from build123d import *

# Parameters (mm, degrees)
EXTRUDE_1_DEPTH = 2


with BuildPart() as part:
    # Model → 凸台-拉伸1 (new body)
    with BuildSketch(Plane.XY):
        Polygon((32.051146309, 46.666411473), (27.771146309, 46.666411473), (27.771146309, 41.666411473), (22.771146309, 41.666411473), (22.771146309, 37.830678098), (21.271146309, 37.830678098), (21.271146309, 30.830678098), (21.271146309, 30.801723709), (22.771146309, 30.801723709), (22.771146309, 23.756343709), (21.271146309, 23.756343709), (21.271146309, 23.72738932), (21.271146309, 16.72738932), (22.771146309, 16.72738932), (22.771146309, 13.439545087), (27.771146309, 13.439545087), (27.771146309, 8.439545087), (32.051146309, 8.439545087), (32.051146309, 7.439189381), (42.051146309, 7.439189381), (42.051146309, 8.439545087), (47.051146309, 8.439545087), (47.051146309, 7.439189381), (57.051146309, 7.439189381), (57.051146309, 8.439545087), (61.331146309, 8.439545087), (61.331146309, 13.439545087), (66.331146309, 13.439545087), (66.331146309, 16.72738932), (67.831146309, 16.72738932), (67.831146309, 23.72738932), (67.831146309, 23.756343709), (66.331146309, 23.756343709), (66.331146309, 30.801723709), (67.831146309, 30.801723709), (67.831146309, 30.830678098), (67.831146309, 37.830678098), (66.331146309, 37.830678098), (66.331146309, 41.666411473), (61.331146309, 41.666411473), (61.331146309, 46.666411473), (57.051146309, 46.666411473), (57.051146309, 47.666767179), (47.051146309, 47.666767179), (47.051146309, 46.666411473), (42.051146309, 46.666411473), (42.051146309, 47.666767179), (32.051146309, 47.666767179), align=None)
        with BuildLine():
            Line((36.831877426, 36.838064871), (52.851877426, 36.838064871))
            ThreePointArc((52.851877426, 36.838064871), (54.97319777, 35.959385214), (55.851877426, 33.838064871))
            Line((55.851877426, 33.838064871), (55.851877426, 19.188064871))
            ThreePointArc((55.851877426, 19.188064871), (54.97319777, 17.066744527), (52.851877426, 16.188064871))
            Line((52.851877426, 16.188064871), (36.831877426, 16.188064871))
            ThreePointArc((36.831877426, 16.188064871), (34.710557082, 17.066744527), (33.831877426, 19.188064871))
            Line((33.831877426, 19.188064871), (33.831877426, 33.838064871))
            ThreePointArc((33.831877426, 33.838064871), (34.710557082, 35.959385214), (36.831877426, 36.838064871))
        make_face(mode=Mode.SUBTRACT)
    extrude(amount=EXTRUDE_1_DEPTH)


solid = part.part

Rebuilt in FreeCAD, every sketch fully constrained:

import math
import FreeCAD as App
import Part
import Sketcher
from FreeCAD import Vector


def add_polygon(sketch, points):
    """Adds a closed chain of lines whose ends are joined by coincident constraints."""
    first, n = sketch.GeometryCount, len(points)
    for a, b in zip(points, points[1:] + points[:1]):
        sketch.addGeometry(Part.LineSegment(App.Vector(*a, 0), App.Vector(*b, 0)), False)
    for i in range(n):
        sketch.addConstraint(Sketcher.Constraint("Coincident", first + i, 2, first + (i + 1) % n, 1))

doc = App.newDocument("Part")
body = doc.addObject("PartDesign::Body", "Body")

# Sketch on XY plane
sketch1 = body.newObject("Sketcher::SketchObject", "Sketch")
sketch1.AttachmentSupport = (doc.getObject("XY_Plane"), [""])
sketch1.MapMode = "FlatFace"
add_polygon(sketch1, [(32.1, 46.7), (27.8, 46.7), (27.8, 41.7), (22.8, 41.7), (22.8, 37.8), (21.3, 37.8), (21.3, 30.8), (22.8, 30.8), (22.8, 23.8), (21.3, 23.8), (21.3, 16.7), (22.8, 16.7), (22.8, 13.4), (27.8, 13.4), (27.8, 8.4), (32.1, 8.4), (32.1, 7.4), (42.1, 7.4), (42.1, 8.4), (47.1, 8.4), (47.1, 7.4), (57.1, 7.4), (57.1, 8.4), (61.3, 8.4), (61.3, 13.4), (66.3, 13.4), (66.3, 16.7), (67.8, 16.7), (67.8, 23.8), (66.3, 23.8), (66.3, 30.8), (67.8, 30.8), (67.8, 37.8), (66.3, 37.8), (66.3, 41.7), (61.3, 41.7), (61.3, 46.7), (57.1, 46.7), (57.1, 47.7), (47.1, 47.7), (47.1, 46.7), (42.1, 46.7), (42.1, 47.7), (32.1, 47.7)])  # lines 0-43
sketch1.addGeometry(Part.ArcOfCircle(Part.Circle(Vector(36.8, 33.8, 0), Vector(0, 0, 1), 3), math.radians(90), math.radians(180)), False)  # 44
sketch1.addGeometry(Part.LineSegment(Vector(36.8, 36.8, 0), Vector(52.9, 36.8, 0)), False)  # 45
sketch1.addGeometry(Part.ArcOfCircle(Part.Circle(Vector(52.9, 33.8, 0), Vector(0, 0, 1), 3), math.radians(0), math.radians(90)), False)  # 46
sketch1.addGeometry(Part.LineSegment(Vector(55.9, 33.8, 0), Vector(55.9, 19.2, 0)), False)  # 47
sketch1.addGeometry(Part.ArcOfCircle(Part.Circle(Vector(52.9, 19.2, 0), Vector(0, 0, 1), 3), math.radians(-90), math.radians(0)), False)  # 48
sketch1.addGeometry(Part.LineSegment(Vector(52.9, 16.2, 0), Vector(36.8, 16.2, 0)), False)  # 49
sketch1.addGeometry(Part.ArcOfCircle(Part.Circle(Vector(36.8, 19.2, 0), Vector(0, 0, 1), 3), math.radians(180), math.radians(270)), False)  # 50
sketch1.addGeometry(Part.LineSegment(Vector(33.8, 19.2, 0), Vector(33.8, 33.8, 0)), False)  # 51
sketch1.addConstraint(Sketcher.Constraint("Tangent", 44, 1, 45, 1))
sketch1.addConstraint(Sketcher.Constraint("Tangent", 45, 2, 46, 2))
sketch1.addConstraint(Sketcher.Constraint("Tangent", 46, 1, 47, 1))
sketch1.addConstraint(Sketcher.Constraint("Tangent", 47, 2, 48, 2))
sketch1.addConstraint(Sketcher.Constraint("Tangent", 48, 1, 49, 1))
sketch1.addConstraint(Sketcher.Constraint("Tangent", 49, 2, 50, 2))
sketch1.addConstraint(Sketcher.Constraint("Tangent", 50, 1, 51, 1))
sketch1.addConstraint(Sketcher.Constraint("Tangent", 51, 2, 44, 2))
sketch1.addConstraint(Sketcher.Constraint("Horizontal", 0))
sketch1.addConstraint(Sketcher.Constraint("Vertical", 1))
sketch1.addConstraint(Sketcher.Constraint("Horizontal", 2))
sketch1.addConstraint(Sketcher.Constraint("Vertical", 3))
sketch1.addConstraint(Sketcher.Constraint("Horizontal", 4))
sketch1.addConstraint(Sketcher.Constraint("Vertical", 5))
sketch1.addConstraint(Sketcher.Constraint("Horizontal", 6))
sketch1.addConstraint(Sketcher.Constraint("Vertical", 7))
sketch1.addConstraint(Sketcher.Constraint("Horizontal", 8))
sketch1.addConstraint(Sketcher.Constraint("Vertical", 9))
sketch1.addConstraint(Sketcher.Constraint("Horizontal", 10))
sketch1.addConstraint(Sketcher.Constraint("Vertical", 11))
sketch1.addConstraint(Sketcher.Constraint("Horizontal", 12))
sketch1.addConstraint(Sketcher.Constraint("Vertical", 13))
sketch1.addConstraint(Sketcher.Constraint("Horizontal", 14))
sketch1.addConstraint(Sketcher.Constraint("Vertical", 15))
sketch1.addConstraint(Sketcher.Constraint("Horizontal", 16))
sketch1.addConstraint(Sketcher.Constraint("Vertical", 17))
sketch1.addConstraint(Sketcher.Constraint("Horizontal", 18))
sketch1.addConstraint(Sketcher.Constraint("Vertical", 19))
sketch1.addConstraint(Sketcher.Constraint("Horizontal", 20))
sketch1.addConstraint(Sketcher.Constraint("Vertical", 21))
sketch1.addConstraint(Sketcher.Constraint("Horizontal", 22))
sketch1.addConstraint(Sketcher.Constraint("Vertical", 23))
sketch1.addConstraint(Sketcher.Constraint("Horizontal", 24))
sketch1.addConstraint(Sketcher.Constraint("Vertical", 25))
sketch1.addConstraint(Sketcher.Constraint("Horizontal", 26))
sketch1.addConstraint(Sketcher.Constraint("Vertical", 27))
sketch1.addConstraint(Sketcher.Constraint("Horizontal", 28))
sketch1.addConstraint(Sketcher.Constraint("Vertical", 29))
sketch1.addConstraint(Sketcher.Constraint("Horizontal", 30))
sketch1.addConstraint(Sketcher.Constraint("Vertical", 31))
sketch1.addConstraint(Sketcher.Constraint("Horizontal", 32))
sketch1.addConstraint(Sketcher.Constraint("Vertical", 33))
sketch1.addConstraint(Sketcher.Constraint("Horizontal", 34))
sketch1.addConstraint(Sketcher.Constraint("Vertical", 35))
sketch1.addConstraint(Sketcher.Constraint("Horizontal", 36))
sketch1.addConstraint(Sketcher.Constraint("Vertical", 37))
sketch1.addConstraint(Sketcher.Constraint("Horizontal", 38))
sketch1.addConstraint(Sketcher.Constraint("Vertical", 39))
sketch1.addConstraint(Sketcher.Constraint("Horizontal", 40))
sketch1.addConstraint(Sketcher.Constraint("Vertical", 41))
sketch1.addConstraint(Sketcher.Constraint("Horizontal", 42))
sketch1.addConstraint(Sketcher.Constraint("Vertical", 43))
sketch1.addConstraint(Sketcher.Constraint("Horizontal", 45))
sketch1.addConstraint(Sketcher.Constraint("Vertical", 47))
sketch1.addConstraint(Sketcher.Constraint("Horizontal", 49))
sketch1.addConstraint(Sketcher.Constraint("Vertical", 51))
sketch1.addConstraint(Sketcher.Constraint("Equal", 44, 46))
sketch1.addConstraint(Sketcher.Constraint("Equal", 46, 48))
sketch1.addConstraint(Sketcher.Constraint("Equal", 48, 50))
sketch1.addConstraint(Sketcher.Constraint("Horizontal", 14, 2, 17, 2))
sketch1.addConstraint(Sketcher.Constraint("Horizontal", 16, 2, 19, 2))
sketch1.addConstraint(Sketcher.Constraint("Horizontal", 18, 2, 21, 2))
sketch1.addConstraint(Sketcher.Constraint("Horizontal", 12, 2, 23, 2))
sketch1.addConstraint(Sketcher.Constraint("Horizontal", 10, 2, 25, 2))
sketch1.addConstraint(Sketcher.Constraint("Horizontal", 8, 2, 27, 2))
sketch1.addConstraint(Sketcher.Constraint("Horizontal", 6, 2, 29, 2))
sketch1.addConstraint(Sketcher.Constraint("Horizontal", 4, 2, 31, 2))
sketch1.addConstraint(Sketcher.Constraint("Horizontal", 2, 2, 33, 2))
sketch1.addConstraint(Sketcher.Constraint("Horizontal", 0, 2, 35, 2))
sketch1.addConstraint(Sketcher.Constraint("Horizontal", 36, 2, 39, 2))
sketch1.addConstraint(Sketcher.Constraint("Horizontal", 38, 2, 41, 2))
sketch1.addConstraint(Sketcher.Constraint("Vertical", 3, 2, 6, 2))
sketch1.addConstraint(Sketcher.Constraint("Vertical", 5, 2, 8, 2))
sketch1.addConstraint(Sketcher.Constraint("Vertical", 7, 2, 10, 2))
sketch1.addConstraint(Sketcher.Constraint("Vertical", 1, 2, 12, 2))
sketch1.addConstraint(Sketcher.Constraint("Vertical", 25, 2, 28, 2))
sketch1.addConstraint(Sketcher.Constraint("Vertical", 27, 2, 30, 2))
sketch1.addConstraint(Sketcher.Constraint("Vertical", 29, 2, 32, 2))
sketch1.addConstraint(Sketcher.Constraint("Vertical", 23, 2, 34, 2))
sketch1.addConstraint(Sketcher.Constraint("Vertical", 21, 2, 36, 2))
sketch1.addConstraint(Sketcher.Constraint("Vertical", 19, 2, 38, 2))
sketch1.addConstraint(Sketcher.Constraint("Vertical", 17, 2, 40, 2))
sketch1.addConstraint(Sketcher.Constraint("Vertical", 15, 2, 42, 2))
sketch1.addConstraint(Sketcher.Constraint("Equal", 12, 18))
sketch1.addConstraint(Sketcher.Constraint("Equal", 16, 20))
sketch1.addConstraint(Sketcher.Constraint("Equal", 14, 22))
sketch1.addConstraint(Sketcher.Constraint("Equal", 18, 24))
sketch1.addConstraint(Sketcher.Constraint("Equal", 10, 26))
sketch1.addConstraint(Sketcher.Constraint("Equal", 40, 1))
sketch1.addConstraint(Sketcher.Constraint("Equal", 5, 9))
sketch1.addConstraint(Sketcher.Constraint("Equal", 1, 13))
sketch1.addConstraint(Sketcher.Constraint("Equal", 21, 37))
sketch1.addConstraint(Sketcher.Constraint("Radius", 44, 3.0))
sketch1.addConstraint(Sketcher.Constraint("DistanceX", 2, 2, 2, 1, 5.0))
sketch1.addConstraint(Sketcher.Constraint("DistanceX", 16, 1, 16, 2, 10.0))
sketch1.addConstraint(Sketcher.Constraint("DistanceX", 4, 2, 4, 1, 1.5))
sketch1.addConstraint(Sketcher.Constraint("DistanceX", 0, 2, 0, 1, 4.28))
sketch1.addConstraint(Sketcher.Constraint("DistanceX", 45, 1, 45, 2, 16.02))
sketch1.addConstraint(Sketcher.Constraint("DistanceY", 47, 2, 47, 1, 14.65))
sketch1.addConstraint(Sketcher.Constraint("DistanceY", 7, 2, 7, 1, 7.04538))
sketch1.addConstraint(Sketcher.Constraint("DistanceY", 11, 2, 7, 2, 10.316799))
sketch1.addConstraint(Sketcher.Constraint("DistanceY", 20, 2, 25, 2, 9.2882))
sketch1.addConstraint(Sketcher.Constraint("DistanceY", 3, 2, 3, 1, 3.835733))
sketch1.addConstraint(Sketcher.Constraint("DistanceY", 5, 2, 5, 1, 7.028954))
sketch1.addConstraint(Sketcher.Constraint("DistanceY", -1, 1, 0, 2, 46.666411))
sketch1.addConstraint(Sketcher.Constraint("DistanceX", 0, 2, 44, 3, 9.060731))
sketch1.addConstraint(Sketcher.Constraint("DistanceY", 5, 2, 44, 3, 3.036341))
sketch1.addConstraint(Sketcher.Constraint("DistanceX", -1, 1, 44, 3, 36.831877))
pad1 = body.newObject("PartDesign::Pad", "Pad")
pad1.Profile = sketch1
pad1.Length = 2

doc.recompute()
